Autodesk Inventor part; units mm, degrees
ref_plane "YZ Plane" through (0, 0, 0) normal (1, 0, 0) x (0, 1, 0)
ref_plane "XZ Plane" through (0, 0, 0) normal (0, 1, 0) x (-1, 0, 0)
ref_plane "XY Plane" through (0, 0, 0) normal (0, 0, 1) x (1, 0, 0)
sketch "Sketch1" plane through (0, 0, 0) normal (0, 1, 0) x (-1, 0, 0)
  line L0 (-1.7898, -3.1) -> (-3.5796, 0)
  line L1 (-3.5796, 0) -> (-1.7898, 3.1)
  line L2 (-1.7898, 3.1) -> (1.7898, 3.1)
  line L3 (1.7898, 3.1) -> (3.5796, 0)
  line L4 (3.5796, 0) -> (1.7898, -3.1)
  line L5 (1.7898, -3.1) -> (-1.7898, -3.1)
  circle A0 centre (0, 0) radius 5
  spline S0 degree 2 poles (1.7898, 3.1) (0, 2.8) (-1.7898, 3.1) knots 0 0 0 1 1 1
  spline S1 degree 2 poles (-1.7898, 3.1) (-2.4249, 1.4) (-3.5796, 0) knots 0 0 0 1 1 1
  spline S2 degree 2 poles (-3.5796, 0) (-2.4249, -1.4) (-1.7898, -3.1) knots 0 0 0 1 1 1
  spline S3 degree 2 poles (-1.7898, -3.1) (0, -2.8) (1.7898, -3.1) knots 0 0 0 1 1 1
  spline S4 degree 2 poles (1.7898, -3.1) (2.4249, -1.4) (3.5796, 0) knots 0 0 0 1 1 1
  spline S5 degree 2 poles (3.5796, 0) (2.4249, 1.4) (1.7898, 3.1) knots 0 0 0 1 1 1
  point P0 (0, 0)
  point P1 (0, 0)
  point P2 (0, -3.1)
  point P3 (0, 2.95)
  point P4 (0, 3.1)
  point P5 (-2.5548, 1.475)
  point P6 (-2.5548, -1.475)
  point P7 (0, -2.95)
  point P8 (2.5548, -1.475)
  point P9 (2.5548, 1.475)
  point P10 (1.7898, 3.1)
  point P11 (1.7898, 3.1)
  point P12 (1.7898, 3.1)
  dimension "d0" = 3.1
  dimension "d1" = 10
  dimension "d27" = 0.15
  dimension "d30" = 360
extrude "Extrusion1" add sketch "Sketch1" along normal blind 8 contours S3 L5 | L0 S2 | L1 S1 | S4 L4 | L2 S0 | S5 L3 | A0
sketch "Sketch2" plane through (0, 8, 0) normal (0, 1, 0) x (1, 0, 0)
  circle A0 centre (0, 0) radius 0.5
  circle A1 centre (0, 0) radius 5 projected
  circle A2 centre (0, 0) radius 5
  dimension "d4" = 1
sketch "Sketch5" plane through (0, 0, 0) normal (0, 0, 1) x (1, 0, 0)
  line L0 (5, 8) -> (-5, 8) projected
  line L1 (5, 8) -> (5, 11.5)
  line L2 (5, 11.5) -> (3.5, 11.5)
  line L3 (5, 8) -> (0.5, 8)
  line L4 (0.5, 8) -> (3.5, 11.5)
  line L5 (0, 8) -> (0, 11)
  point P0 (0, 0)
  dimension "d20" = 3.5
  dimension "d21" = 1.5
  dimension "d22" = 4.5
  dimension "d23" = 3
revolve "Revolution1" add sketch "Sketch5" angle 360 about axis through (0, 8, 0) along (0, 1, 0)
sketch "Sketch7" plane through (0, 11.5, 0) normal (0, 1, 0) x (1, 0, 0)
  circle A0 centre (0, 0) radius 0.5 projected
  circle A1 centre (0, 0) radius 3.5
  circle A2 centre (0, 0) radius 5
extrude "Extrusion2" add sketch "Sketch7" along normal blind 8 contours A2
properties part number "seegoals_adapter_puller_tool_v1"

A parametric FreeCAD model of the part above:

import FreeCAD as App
import Part
import Sketcher
from FreeCAD import Vector
Q = App.Units.Quantity


def add_polygon(sketch, points):
    """Adds a closed chain of lines whose ends are joined by coincident constraints."""
    first, n = sketch.GeometryCount, len(points)
    for a, b in zip(points, points[1:] + points[:1]):
        sketch.addGeometry(Part.LineSegment(App.Vector(*a, 0), App.Vector(*b, 0)), False)
    for i in range(n):
        sketch.addConstraint(Sketcher.Constraint("Coincident", first + i, 2, first + (i + 1) % n, 1))

doc = App.newDocument("Part")
body = doc.addObject("PartDesign::Body", "Body")

sketch1 = body.newObject("Sketcher::SketchObject", "Sketch")
sketch1.AttachmentSupport = (doc.getObject("XZ_Plane"), [""])
sketch1.MapMode = "FlatFace"
sketch1.addGeometry(Part.Circle(Vector(0, 0, 0), Vector(0, 0, 1), 5), False)
sketch1.addGeometry(Part.BSplineCurve([Vector(1.7898, -3.1, 0), Vector(0, -2.8, 0), Vector(-1.7898, -3.1, 0)], [3, 3], [0, 1], False, 2, [1, 1, 1], False), False)
sketch1.addGeometry(Part.BSplineCurve([Vector(3.5796, 0, 0), Vector(2.4249, -1.4, 0), Vector(1.7898, -3.1, 0)], [3, 3], [0, 1], False, 2, [1, 1, 1], False), False)
sketch1.addGeometry(Part.BSplineCurve([Vector(1.7898, 3.1, 0), Vector(2.4249, 1.4, 0), Vector(3.5796, 0, 0)], [3, 3], [0, 1], False, 2, [1, 1, 1], False), False)
sketch1.addGeometry(Part.BSplineCurve([Vector(-1.7898, 3.1, 0), Vector(0, 2.8, 0), Vector(1.7898, 3.1, 0)], [3, 3], [0, 1], False, 2, [1, 1, 1], False), False)
sketch1.addGeometry(Part.BSplineCurve([Vector(-3.5796, 0, 0), Vector(-2.4249, 1.4, 0), Vector(-1.7898, 3.1, 0)], [3, 3], [0, 1], False, 2, [1, 1, 1], False), False)
sketch1.addGeometry(Part.BSplineCurve([Vector(-1.7898, -3.1, 0), Vector(-2.4249, -1.4, 0), Vector(-3.5796, 0, 0)], [3, 3], [0, 1], False, 2, [1, 1, 1], False), False)
sketch1.addConstraint(Sketcher.Constraint("Block", 1))
sketch1.addConstraint(Sketcher.Constraint("Block", 2))
sketch1.addConstraint(Sketcher.Constraint("Block", 3))
sketch1.addConstraint(Sketcher.Constraint("Block", 4))
sketch1.addConstraint(Sketcher.Constraint("Block", 5))
sketch1.addConstraint(Sketcher.Constraint("Block", 6))
sketch1.addConstraint(Sketcher.Constraint("Coincident", 0, 3, -1, 1))
sketch1.addConstraint(Sketcher.Constraint("Diameter", 0, Q("10 mm")))
pad1 = body.newObject("PartDesign::Pad", "Pad")
pad1.Profile = sketch1
pad1.Length = 8
pad1.Reversed = True

sketch2 = body.newObject("Sketcher::SketchObject", "Sketch001")
sketch2.AttachmentSupport = (doc.getObject("XY_Plane"), [""])
sketch2.MapMode = "FlatFace"
add_polygon(sketch2, [(0.5, 8), (5, 8), (5, 11.5), (3.5, 11.5)])
sketch2.addConstraint(Sketcher.Constraint("Horizontal", 0))
sketch2.addConstraint(Sketcher.Constraint("Vertical", 1))
sketch2.addConstraint(Sketcher.Constraint("Horizontal", 2))
sketch2.addConstraint(Sketcher.Constraint("DistanceX", 0, 1, 0, 2, Q("4.5 mm")))
sketch2.addConstraint(Sketcher.Constraint("DistanceX", 2, 2, 2, 1, Q("1.5 mm")))
sketch2.addConstraint(Sketcher.Constraint("DistanceY", 1, 1, 1, 2, Q("3.5 mm")))
sketch2.addConstraint(Sketcher.Constraint("DistanceX", -1, 1, 2, 2, Q("3.5 mm")))
sketch2.addConstraint(Sketcher.Constraint("DistanceY", -1, 1, 0, 2, Q("8 mm")))
revolution = body.newObject("PartDesign::Revolution", "Revolution")
revolution.Profile = sketch2
revolution.ReferenceAxis = (sketch2, ["V_Axis"])
revolution.Angle = 360

sketch3 = body.newObject("Sketcher::SketchObject", "Sketch002")
sketch3.AttachmentSupport = (doc.getObject("XZ_Plane"), [""])
sketch3.MapMode = "FlatFace"
sketch3.AttachmentOffset = App.Placement(Vector(0, 0, -11.5), App.Rotation())
sketch3.addGeometry(Part.Circle(Vector(0, 0, 0), Vector(0, 0, 1), 5), False)
sketch3.addGeometry(Part.Circle(Vector(0, 0, 0), Vector(0, 0, 1), 3.5), False)
sketch3.addConstraint(Sketcher.Constraint("Coincident", 0, 3, -1, 1))
sketch3.addConstraint(Sketcher.Constraint("Coincident", 1, 3, -1, 1))
sketch3.addConstraint(Sketcher.Constraint("Diameter", 0, Q("10 mm")))
sketch3.addConstraint(Sketcher.Constraint("Diameter", 1, Q("7 mm")))
pad2 = body.newObject("PartDesign::Pad", "Pad001")
pad2.Profile = sketch3
pad2.Length = 8
pad2.Reversed = True

doc.recompute()
